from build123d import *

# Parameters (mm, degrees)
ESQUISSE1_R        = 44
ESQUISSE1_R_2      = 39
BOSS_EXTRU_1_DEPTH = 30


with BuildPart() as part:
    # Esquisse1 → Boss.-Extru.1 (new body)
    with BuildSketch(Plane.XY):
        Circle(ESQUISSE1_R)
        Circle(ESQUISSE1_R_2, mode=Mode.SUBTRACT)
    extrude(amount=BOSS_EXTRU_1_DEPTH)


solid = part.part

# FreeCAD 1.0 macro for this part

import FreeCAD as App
import Part
import Sketcher

V = App.Vector

doc = App.newDocument("Part")
body = doc.addObject("PartDesign::Body", "Body")

# Sketch on XY plane
sketch1 = body.newObject("Sketcher::SketchObject", "Sketch")
sketch1.AttachmentSupport = (doc.getObject("XY_Plane"), [""])
sketch1.MapMode = "FlatFace"
sketch1.addGeometry([
    Part.Circle(V(0, 0, 0), V(0, 0, 1), 44),
    Part.Circle(V(0, 0, 0), V(0, 0, 1), 39),
], False)
sketch1.addConstraint([
    Sketcher.Constraint("Coincident", 0, 3, -1, 1),
    Sketcher.Constraint("Coincident", 1, 3, -1, 1),
    Sketcher.Constraint("Diameter", 0, 88.0),
    Sketcher.Constraint("Diameter", 1, 78.0),
])
pad1 = body.newObject("PartDesign::Pad", "Pad")
pad1.Profile = sketch1
pad1.Length = 30

doc.recompute()
